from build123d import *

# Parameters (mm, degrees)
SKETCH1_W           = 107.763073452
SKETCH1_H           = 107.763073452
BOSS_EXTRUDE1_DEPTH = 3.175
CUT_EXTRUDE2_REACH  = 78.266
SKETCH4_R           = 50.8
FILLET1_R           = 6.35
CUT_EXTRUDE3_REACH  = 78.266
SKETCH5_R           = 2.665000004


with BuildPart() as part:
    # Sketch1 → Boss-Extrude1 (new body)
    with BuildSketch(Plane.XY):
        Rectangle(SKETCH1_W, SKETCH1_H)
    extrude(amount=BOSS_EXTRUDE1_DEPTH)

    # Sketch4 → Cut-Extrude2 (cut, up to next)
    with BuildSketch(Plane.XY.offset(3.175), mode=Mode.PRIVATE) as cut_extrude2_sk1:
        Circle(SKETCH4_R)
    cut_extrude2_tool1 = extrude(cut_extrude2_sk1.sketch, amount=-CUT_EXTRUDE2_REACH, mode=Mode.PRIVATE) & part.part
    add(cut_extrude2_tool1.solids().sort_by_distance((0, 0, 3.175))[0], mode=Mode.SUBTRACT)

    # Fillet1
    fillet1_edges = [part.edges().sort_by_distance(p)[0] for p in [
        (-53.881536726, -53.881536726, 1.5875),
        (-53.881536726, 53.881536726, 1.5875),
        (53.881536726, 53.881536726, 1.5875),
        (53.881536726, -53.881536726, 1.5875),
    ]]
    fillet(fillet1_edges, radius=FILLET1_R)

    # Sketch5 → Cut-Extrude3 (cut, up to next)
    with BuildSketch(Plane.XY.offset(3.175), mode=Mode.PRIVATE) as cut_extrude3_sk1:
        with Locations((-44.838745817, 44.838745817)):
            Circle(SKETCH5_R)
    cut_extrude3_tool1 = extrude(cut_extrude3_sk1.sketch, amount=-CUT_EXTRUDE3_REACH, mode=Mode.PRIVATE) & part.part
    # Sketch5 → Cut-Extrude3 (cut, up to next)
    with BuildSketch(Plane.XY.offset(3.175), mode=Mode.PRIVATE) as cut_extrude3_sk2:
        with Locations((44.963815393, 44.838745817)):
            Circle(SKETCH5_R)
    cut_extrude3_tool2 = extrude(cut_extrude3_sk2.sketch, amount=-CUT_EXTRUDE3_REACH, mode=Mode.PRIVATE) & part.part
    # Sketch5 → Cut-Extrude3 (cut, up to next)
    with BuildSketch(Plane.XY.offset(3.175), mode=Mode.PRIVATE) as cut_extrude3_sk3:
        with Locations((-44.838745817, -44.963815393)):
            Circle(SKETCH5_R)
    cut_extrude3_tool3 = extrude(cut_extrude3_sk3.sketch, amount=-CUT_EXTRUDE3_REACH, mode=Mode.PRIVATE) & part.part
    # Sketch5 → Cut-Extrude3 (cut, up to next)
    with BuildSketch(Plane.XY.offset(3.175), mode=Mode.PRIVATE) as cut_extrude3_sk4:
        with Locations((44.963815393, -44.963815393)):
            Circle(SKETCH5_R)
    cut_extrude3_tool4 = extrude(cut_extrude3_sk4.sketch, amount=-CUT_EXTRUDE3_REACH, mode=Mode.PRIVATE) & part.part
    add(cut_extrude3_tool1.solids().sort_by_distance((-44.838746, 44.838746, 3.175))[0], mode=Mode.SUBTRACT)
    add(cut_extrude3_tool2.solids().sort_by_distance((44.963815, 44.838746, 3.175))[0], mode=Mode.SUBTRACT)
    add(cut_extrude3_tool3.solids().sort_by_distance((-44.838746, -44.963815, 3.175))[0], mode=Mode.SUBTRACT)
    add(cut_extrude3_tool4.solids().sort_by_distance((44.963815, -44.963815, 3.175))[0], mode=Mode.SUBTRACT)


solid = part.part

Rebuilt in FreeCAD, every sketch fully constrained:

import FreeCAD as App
import Part
import Sketcher
Q = App.Units.Quantity


def edges_at(feature, points):
    """Names of the edges that pass closest to the given points."""
    edges = feature.Shape.Edges
    near = lambda p: min(range(len(edges)), key=lambda i: edges[i].distToShape(Part.Vertex(*p))[0])
    return sorted({f"Edge{near(p) + 1}" for p in points})


def add_polygon(sketch, points):
    """Adds a closed chain of lines whose ends are joined by coincident constraints."""
    first, n = sketch.GeometryCount, len(points)
    for a, b in zip(points, points[1:] + points[:1]):
        sketch.addGeometry(Part.LineSegment(App.Vector(*a, 0), App.Vector(*b, 0)), False)
    for i in range(n):
        sketch.addConstraint(Sketcher.Constraint("Coincident", first + i, 2, first + (i + 1) % n, 1))

doc = App.newDocument("Part")
params = doc.addObject("Spreadsheet::Sheet", "Params")
for row, (alias, value) in enumerate([
    ("pad1_length", "0.125 in"),
    ("sketch2_diameter", "4 in"),
    ("fillet_radius", "0.25 in"),
], start=1):
    params.set(f"A{row}", alias)
    params.set(f"B{row}", "=" + value)
    params.setAlias(f"B{row}", alias)

body = doc.addObject("PartDesign::Body", "Body")

# Sketch on XY plane
sketch1 = doc.addObject("Sketcher::SketchObject", "Sketch")
body.addObject(sketch1)
sketch1.AttachmentSupport = (doc.XY_Plane, [""])
sketch1.MapMode = "FlatFace"
add_polygon(sketch1, [(-53.881537, 53.881537), (-53.881537, -53.881537), (53.881537, -53.881537), (53.881537, 53.881537)])  # lines 0-3
sketch1.addConstraint(Sketcher.Constraint("Vertical", 0))
sketch1.addConstraint(Sketcher.Constraint("Horizontal", 1))
sketch1.addConstraint(Sketcher.Constraint("Vertical", 2))
sketch1.addConstraint(Sketcher.Constraint("Horizontal", 3))
sketch1.addConstraint(Sketcher.Constraint("Symmetric", 0, 2, 2, 2, -1, 1))
sketch1.addConstraint(Sketcher.Constraint("Equal", 3, 0))
sketch1.addConstraint(Sketcher.Constraint("DistanceX", 1, 1, 1, 2, Q("107.763073 mm")))
pad1 = doc.addObject("PartDesign::Pad", "Pad")
body.addObject(pad1)
pad1.Profile = sketch1
pad1.setExpression("Length", "Params.pad1_length")

# Sketch on XY plane
sketch2 = doc.addObject("Sketcher::SketchObject", "Sketch001")
body.addObject(sketch2)
sketch2.AttachmentSupport = (doc.XY_Plane, [""])
sketch2.MapMode = "FlatFace"
sketch2.AttachmentOffset = App.Placement(App.Vector(0, 0, 0.125 * 25.4), App.Rotation())
sketch2.addGeometry(Part.Circle(App.Vector(0, 0, 0), App.Vector(0, 0, 1), 50.8), False)
sketch2.addConstraint(Sketcher.Constraint("Coincident", 0, 3, -1, 1))
sketch2.addConstraint(Sketcher.Constraint("Diameter", 0, Q("4 in")))
sketch2.setExpression("Constraints[1]", "Params.sketch2_diameter")
pocket1 = doc.addObject("PartDesign::Pocket", "Pocket")
body.addObject(pocket1)
pocket1.Profile = sketch2
pocket1.Type = "UpToFirst"
doc.recompute()

fillet = doc.addObject("PartDesign::Fillet", "Fillet")
body.addObject(fillet)
fillet.Base = (pocket1, edges_at(pocket1, [
    (-53.882, -53.882, 1.587),
    (-53.882, 53.882, 1.587),
    (53.882, 53.882, 1.587),
    (53.882, -53.882, 1.587),
]))
fillet.setExpression("Radius", "Params.fillet_radius")

# Sketch on XY plane
sketch3 = doc.addObject("Sketcher::SketchObject", "Sketch002")
body.addObject(sketch3)
sketch3.AttachmentSupport = (doc.XY_Plane, [""])
sketch3.MapMode = "FlatFace"
sketch3.AttachmentOffset = App.Placement(App.Vector(0, 0, 0.125 * 25.4), App.Rotation())
sketch3.addGeometry(Part.Circle(App.Vector(-44.838746, 44.838746, 0), App.Vector(0, 0, 1), 2.665), False)
sketch3.addConstraint(Sketcher.Constraint("Diameter", 0, Q("5.33 mm")))
sketch3.addConstraint(Sketcher.Constraint("DistanceX", 0, 3, -1, 1, Q("44.838746 mm")))
sketch3.addConstraint(Sketcher.Constraint("DistanceY", -1, 1, 0, 3, Q("44.838746 mm")))
pocket2 = doc.addObject("PartDesign::Pocket", "Pocket001")
body.addObject(pocket2)
pocket2.Profile = sketch3
pocket2.Type = "UpToFirst"

# Sketch on XY plane
sketch4 = doc.addObject("Sketcher::SketchObject", "Sketch003")
body.addObject(sketch4)
sketch4.AttachmentSupport = (doc.XY_Plane, [""])
sketch4.MapMode = "FlatFace"
sketch4.AttachmentOffset = App.Placement(App.Vector(0, 0, 0.125 * 25.4), App.Rotation())
sketch4.addGeometry(Part.Circle(App.Vector(44.963815, 44.838746, 0), App.Vector(0, 0, 1), 2.665), False)
sketch4.addConstraint(Sketcher.Constraint("Diameter", 0, Q("5.33 mm")))
sketch4.addConstraint(Sketcher.Constraint("DistanceX", -1, 1, 0, 3, Q("44.963815 mm")))
sketch4.addConstraint(Sketcher.Constraint("DistanceY", -1, 1, 0, 3, Q("44.838746 mm")))
pocket3 = doc.addObject("PartDesign::Pocket", "Pocket002")
body.addObject(pocket3)
pocket3.Profile = sketch4
pocket3.Type = "UpToFirst"

# Sketch on XY plane
sketch5 = doc.addObject("Sketcher::SketchObject", "Sketch004")
body.addObject(sketch5)
sketch5.AttachmentSupport = (doc.XY_Plane, [""])
sketch5.MapMode = "FlatFace"
sketch5.AttachmentOffset = App.Placement(App.Vector(0, 0, 0.125 * 25.4), App.Rotation())
sketch5.addGeometry(Part.Circle(App.Vector(-44.838746, -44.963815, 0), App.Vector(0, 0, 1), 2.665), False)
sketch5.addConstraint(Sketcher.Constraint("Diameter", 0, Q("5.33 mm")))
sketch5.addConstraint(Sketcher.Constraint("DistanceX", 0, 3, -1, 1, Q("44.838746 mm")))
sketch5.addConstraint(Sketcher.Constraint("DistanceY", 0, 3, -1, 1, Q("44.963815 mm")))
pocket4 = doc.addObject("PartDesign::Pocket", "Pocket003")
body.addObject(pocket4)
pocket4.Profile = sketch5
pocket4.Type = "UpToFirst"

# Sketch on XY plane
sketch6 = doc.addObject("Sketcher::SketchObject", "Sketch005")
body.addObject(sketch6)
sketch6.AttachmentSupport = (doc.XY_Plane, [""])
sketch6.MapMode = "FlatFace"
sketch6.AttachmentOffset = App.Placement(App.Vector(0, 0, 0.125 * 25.4), App.Rotation())
sketch6.addGeometry(Part.Circle(App.Vector(44.963815, -44.963815, 0), App.Vector(0, 0, 1), 2.665), False)
sketch6.addConstraint(Sketcher.Constraint("Diameter", 0, Q("5.33 mm")))
sketch6.addConstraint(Sketcher.Constraint("DistanceX", -1, 1, 0, 3, Q("44.963815 mm")))
sketch6.addConstraint(Sketcher.Constraint("DistanceY", 0, 3, -1, 1, Q("44.963815 mm")))
pocket5 = doc.addObject("PartDesign::Pocket", "Pocket004")
body.addObject(pocket5)
pocket5.Profile = sketch6
pocket5.Type = "UpToFirst"

doc.recompute()
